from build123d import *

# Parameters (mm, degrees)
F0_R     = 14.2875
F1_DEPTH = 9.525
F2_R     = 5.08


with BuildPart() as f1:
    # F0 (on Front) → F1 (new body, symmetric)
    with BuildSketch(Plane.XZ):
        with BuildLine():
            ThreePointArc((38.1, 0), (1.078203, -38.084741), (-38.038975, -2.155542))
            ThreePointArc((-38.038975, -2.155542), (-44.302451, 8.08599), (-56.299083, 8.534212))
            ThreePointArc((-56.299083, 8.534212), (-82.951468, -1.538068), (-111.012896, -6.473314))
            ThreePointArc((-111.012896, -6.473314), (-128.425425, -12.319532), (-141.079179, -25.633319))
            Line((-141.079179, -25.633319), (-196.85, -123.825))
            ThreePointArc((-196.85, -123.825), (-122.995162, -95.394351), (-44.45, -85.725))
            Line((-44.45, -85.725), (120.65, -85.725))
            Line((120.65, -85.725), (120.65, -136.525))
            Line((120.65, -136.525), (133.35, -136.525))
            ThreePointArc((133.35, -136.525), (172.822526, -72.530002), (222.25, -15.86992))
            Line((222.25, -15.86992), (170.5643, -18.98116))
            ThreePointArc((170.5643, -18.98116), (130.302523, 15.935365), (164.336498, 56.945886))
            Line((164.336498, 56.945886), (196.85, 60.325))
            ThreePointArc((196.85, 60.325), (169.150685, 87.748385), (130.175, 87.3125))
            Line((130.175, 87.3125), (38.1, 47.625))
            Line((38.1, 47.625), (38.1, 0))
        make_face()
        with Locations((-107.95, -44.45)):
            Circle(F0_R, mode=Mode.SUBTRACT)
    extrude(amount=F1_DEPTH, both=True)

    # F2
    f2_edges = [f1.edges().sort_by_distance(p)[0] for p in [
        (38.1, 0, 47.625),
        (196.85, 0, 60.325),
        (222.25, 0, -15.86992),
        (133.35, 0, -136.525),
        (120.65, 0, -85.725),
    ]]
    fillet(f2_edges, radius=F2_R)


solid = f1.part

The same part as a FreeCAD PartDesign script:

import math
import FreeCAD as App
import Part
import Sketcher
Q = App.Units.Quantity


def edges_at(feature, points):
    """Names of the edges that pass closest to the given points."""
    edges = feature.Shape.Edges
    near = lambda p: min(range(len(edges)), key=lambda i: edges[i].distToShape(Part.Vertex(*p))[0])
    return sorted({f"Edge{near(p) + 1}" for p in points})

doc = App.newDocument("Part")
body = doc.addObject("PartDesign::Body", "Body")

# Sketch on XZ plane
sketch1 = body.newObject("Sketcher::SketchObject", "Sketch")
sketch1.AttachmentSupport = (doc.getObject("XZ_Plane"), [""])
sketch1.MapMode = "FlatFace"
sketch1.addGeometry([
    Part.ArcOfCircle(Part.Circle(App.Vector(0, 0, 0), App.Vector(0, 0, 1), 38), math.radians(-177), math.radians(0)),  # 0
    Part.ArcOfCircle(Part.Circle(App.Vector(-51, -3, 0), App.Vector(0, 0, 1), 13), math.radians(3), math.radians(116)),  # 1
    Part.ArcOfCircle(Part.Circle(App.Vector(-123, 145, 0), App.Vector(0, 0, 1), 152), math.radians(-85), math.radians(-64)),  # 2
    Part.ArcOfCircle(Part.Circle(App.Vector(-108, -44, 0), App.Vector(0, 0, 1), 38), math.radians(95), math.radians(150)),  # 3
    Part.LineSegment(App.Vector(-141, -26, 0), App.Vector(-197, -124, 0)),  # 4
    Part.ArcOfCircle(Part.Circle(App.Vector(-44, -410, 0), App.Vector(0, 0, 1), 324), math.radians(90), math.radians(118)),  # 5
    Part.LineSegment(App.Vector(-44, -86, 0), App.Vector(121, -86, 0)),  # 6
    Part.LineSegment(App.Vector(121, -86, 0), App.Vector(121, -137, 0)),  # 7
    Part.LineSegment(App.Vector(121, -137, 0), App.Vector(133, -137, 0)),  # 8
    Part.ArcOfCircle(Part.Circle(App.Vector(541, -344, 0), App.Vector(0, 0, 1), 457), math.radians(134.18), math.radians(153.05)),  # 9
    Part.LineSegment(App.Vector(222, -16, 0), App.Vector(171, -19, 0)),  # 10
    Part.ArcOfCircle(Part.Circle(App.Vector(168, 19, 0), App.Vector(0, 0, 1), 38), math.radians(96), math.radians(273)),  # 11
    Part.LineSegment(App.Vector(164, 57, 0), App.Vector(197, 60, 0)),  # 12
    Part.ArcOfCircle(Part.Circle(App.Vector(150, 41, 0), App.Vector(0, 0, 1), 51), math.radians(23), math.radians(113)),  # 13
    Part.LineSegment(App.Vector(130, 87, 0), App.Vector(38, 48, 0)),  # 14
    Part.LineSegment(App.Vector(38, 48, 0), App.Vector(38, 0, 0)),  # 15
    Part.Circle(App.Vector(-108, -44, 0), App.Vector(0, 0, 1), 14),  # 16
], False)
sketch1.addConstraint([
    Sketcher.Constraint("Tangent", 0, 1, 1, 1),
    Sketcher.Constraint("Tangent", 1, 2, 2, 2),
    Sketcher.Constraint("Tangent", 2, 1, 3, 1),
    Sketcher.Constraint("Tangent", 3, 2, 4, 1),
    Sketcher.Constraint("Coincident", 4, 2, 5, 2),
    Sketcher.Constraint("Tangent", 5, 1, 6, 1),
    Sketcher.Constraint("Coincident", 6, 2, 7, 1),
    Sketcher.Constraint("Coincident", 7, 2, 8, 1),
    Sketcher.Constraint("Coincident", 8, 2, 9, 2),
    Sketcher.Constraint("Coincident", 9, 1, 10, 1),
    Sketcher.Constraint("Tangent", 10, 2, 11, 2),
    Sketcher.Constraint("Tangent", 11, 1, 12, 1),
    Sketcher.Constraint("Coincident", 12, 2, 13, 1),
    Sketcher.Constraint("Tangent", 13, 2, 14, 1),
    Sketcher.Constraint("Coincident", 14, 2, 15, 1),
    Sketcher.Constraint("Tangent", 15, 2, 0, 2),
    Sketcher.Constraint("Horizontal", 6),
    Sketcher.Constraint("Vertical", 7),
    Sketcher.Constraint("Horizontal", 8),
    Sketcher.Constraint("Vertical", 15),
    Sketcher.Constraint("Coincident", 0, 3, -1, 1),
    Sketcher.Constraint("Coincident", 16, 3, 3, 3),
    Sketcher.Constraint("Equal", 0, 3),
    Sketcher.Constraint("Equal", 3, 11),
    Sketcher.Constraint("Radius", 0, Q("1.5 in")),
    Sketcher.Constraint("Radius", 1, Q("0.5 in")),
    Sketcher.Constraint("DistanceY", 7, 2, 7, 1, Q("2 in")),
    Sketcher.Constraint("Diameter", 16, Q("1.125 in")),
    Sketcher.Constraint("DistanceX", 6, 1, 6, 2, Q("6.5 in")),
    Sketcher.Constraint("DistanceX", 8, 1, 8, 2, Q("0.5 in")),
    Sketcher.Constraint("DistanceX", 6, 2, 9, 1, Q("4 in")),
    Sketcher.Constraint("DistanceX", 12, 2, 9, 1, Q("1 in")),
    Sketcher.Constraint("DistanceX", 3, 3, 5, 3, Q("2.4999999 in")),
    Sketcher.Constraint("DistanceY", 3, 3, 11, 3, Q("2.5 in")),
    Sketcher.Constraint("DistanceX", 4, 2, 16, 3, Q("3.5 in")),
    Sketcher.Constraint("DistanceX", 13, 2, 11, 3, Q("1.5 in")),
    Sketcher.Constraint("DistanceY", 15, 2, 15, 1, Q("1.875 in")),
    Sketcher.Constraint("DistanceX", 3, 3, -1, 1, Q("4.25 in")),
    Sketcher.Constraint("DistanceY", 3, 3, -1, 1, Q("1.75 in")),
    Sketcher.Constraint("DistanceX", -1, 1, 11, 3, Q("6.625 in")),
    Sketcher.Constraint("DistanceY", 4, 2, -1, 1, Q("4.875 in")),
    Sketcher.Constraint("DistanceY", 5, 1, -1, 1, Q("3.375 in")),
    Sketcher.Constraint("DistanceY", -1, 1, 12, 2, Q("2.375 in")),
    Sketcher.Constraint("DistanceY", -1, 1, 13, 2, Q("3.4375 in")),
    Sketcher.Constraint("Radius", 2, Q("152.400014 mm")),
    Sketcher.Constraint("Radius", 9, Q("457.200014 mm")),
    Sketcher.Constraint("DistanceX", -1, 1, 10, 2, Q("170.5643 mm")),
    Sketcher.Constraint("DistanceY", 1, 3, 2, 3, Q("148.307499 mm")),
])
pad1 = body.newObject("PartDesign::Pad", "Pad")
pad1.Profile = sketch1
pad1.Length = Q("0.75 in")
pad1.Midplane = True
doc.recompute()

fillet = body.newObject("PartDesign::Fillet", "Fillet")
fillet.Base = (pad1, edges_at(pad1, [
    (38.1, 0, 47.625),
    (196.85, 0, 60.325),
    (222.25, 0, -15.87),
    (133.35, 0, -136.525),
    (120.65, 0, -85.725),
]))
fillet.Radius = Q("0.2 in")

doc.recompute()
